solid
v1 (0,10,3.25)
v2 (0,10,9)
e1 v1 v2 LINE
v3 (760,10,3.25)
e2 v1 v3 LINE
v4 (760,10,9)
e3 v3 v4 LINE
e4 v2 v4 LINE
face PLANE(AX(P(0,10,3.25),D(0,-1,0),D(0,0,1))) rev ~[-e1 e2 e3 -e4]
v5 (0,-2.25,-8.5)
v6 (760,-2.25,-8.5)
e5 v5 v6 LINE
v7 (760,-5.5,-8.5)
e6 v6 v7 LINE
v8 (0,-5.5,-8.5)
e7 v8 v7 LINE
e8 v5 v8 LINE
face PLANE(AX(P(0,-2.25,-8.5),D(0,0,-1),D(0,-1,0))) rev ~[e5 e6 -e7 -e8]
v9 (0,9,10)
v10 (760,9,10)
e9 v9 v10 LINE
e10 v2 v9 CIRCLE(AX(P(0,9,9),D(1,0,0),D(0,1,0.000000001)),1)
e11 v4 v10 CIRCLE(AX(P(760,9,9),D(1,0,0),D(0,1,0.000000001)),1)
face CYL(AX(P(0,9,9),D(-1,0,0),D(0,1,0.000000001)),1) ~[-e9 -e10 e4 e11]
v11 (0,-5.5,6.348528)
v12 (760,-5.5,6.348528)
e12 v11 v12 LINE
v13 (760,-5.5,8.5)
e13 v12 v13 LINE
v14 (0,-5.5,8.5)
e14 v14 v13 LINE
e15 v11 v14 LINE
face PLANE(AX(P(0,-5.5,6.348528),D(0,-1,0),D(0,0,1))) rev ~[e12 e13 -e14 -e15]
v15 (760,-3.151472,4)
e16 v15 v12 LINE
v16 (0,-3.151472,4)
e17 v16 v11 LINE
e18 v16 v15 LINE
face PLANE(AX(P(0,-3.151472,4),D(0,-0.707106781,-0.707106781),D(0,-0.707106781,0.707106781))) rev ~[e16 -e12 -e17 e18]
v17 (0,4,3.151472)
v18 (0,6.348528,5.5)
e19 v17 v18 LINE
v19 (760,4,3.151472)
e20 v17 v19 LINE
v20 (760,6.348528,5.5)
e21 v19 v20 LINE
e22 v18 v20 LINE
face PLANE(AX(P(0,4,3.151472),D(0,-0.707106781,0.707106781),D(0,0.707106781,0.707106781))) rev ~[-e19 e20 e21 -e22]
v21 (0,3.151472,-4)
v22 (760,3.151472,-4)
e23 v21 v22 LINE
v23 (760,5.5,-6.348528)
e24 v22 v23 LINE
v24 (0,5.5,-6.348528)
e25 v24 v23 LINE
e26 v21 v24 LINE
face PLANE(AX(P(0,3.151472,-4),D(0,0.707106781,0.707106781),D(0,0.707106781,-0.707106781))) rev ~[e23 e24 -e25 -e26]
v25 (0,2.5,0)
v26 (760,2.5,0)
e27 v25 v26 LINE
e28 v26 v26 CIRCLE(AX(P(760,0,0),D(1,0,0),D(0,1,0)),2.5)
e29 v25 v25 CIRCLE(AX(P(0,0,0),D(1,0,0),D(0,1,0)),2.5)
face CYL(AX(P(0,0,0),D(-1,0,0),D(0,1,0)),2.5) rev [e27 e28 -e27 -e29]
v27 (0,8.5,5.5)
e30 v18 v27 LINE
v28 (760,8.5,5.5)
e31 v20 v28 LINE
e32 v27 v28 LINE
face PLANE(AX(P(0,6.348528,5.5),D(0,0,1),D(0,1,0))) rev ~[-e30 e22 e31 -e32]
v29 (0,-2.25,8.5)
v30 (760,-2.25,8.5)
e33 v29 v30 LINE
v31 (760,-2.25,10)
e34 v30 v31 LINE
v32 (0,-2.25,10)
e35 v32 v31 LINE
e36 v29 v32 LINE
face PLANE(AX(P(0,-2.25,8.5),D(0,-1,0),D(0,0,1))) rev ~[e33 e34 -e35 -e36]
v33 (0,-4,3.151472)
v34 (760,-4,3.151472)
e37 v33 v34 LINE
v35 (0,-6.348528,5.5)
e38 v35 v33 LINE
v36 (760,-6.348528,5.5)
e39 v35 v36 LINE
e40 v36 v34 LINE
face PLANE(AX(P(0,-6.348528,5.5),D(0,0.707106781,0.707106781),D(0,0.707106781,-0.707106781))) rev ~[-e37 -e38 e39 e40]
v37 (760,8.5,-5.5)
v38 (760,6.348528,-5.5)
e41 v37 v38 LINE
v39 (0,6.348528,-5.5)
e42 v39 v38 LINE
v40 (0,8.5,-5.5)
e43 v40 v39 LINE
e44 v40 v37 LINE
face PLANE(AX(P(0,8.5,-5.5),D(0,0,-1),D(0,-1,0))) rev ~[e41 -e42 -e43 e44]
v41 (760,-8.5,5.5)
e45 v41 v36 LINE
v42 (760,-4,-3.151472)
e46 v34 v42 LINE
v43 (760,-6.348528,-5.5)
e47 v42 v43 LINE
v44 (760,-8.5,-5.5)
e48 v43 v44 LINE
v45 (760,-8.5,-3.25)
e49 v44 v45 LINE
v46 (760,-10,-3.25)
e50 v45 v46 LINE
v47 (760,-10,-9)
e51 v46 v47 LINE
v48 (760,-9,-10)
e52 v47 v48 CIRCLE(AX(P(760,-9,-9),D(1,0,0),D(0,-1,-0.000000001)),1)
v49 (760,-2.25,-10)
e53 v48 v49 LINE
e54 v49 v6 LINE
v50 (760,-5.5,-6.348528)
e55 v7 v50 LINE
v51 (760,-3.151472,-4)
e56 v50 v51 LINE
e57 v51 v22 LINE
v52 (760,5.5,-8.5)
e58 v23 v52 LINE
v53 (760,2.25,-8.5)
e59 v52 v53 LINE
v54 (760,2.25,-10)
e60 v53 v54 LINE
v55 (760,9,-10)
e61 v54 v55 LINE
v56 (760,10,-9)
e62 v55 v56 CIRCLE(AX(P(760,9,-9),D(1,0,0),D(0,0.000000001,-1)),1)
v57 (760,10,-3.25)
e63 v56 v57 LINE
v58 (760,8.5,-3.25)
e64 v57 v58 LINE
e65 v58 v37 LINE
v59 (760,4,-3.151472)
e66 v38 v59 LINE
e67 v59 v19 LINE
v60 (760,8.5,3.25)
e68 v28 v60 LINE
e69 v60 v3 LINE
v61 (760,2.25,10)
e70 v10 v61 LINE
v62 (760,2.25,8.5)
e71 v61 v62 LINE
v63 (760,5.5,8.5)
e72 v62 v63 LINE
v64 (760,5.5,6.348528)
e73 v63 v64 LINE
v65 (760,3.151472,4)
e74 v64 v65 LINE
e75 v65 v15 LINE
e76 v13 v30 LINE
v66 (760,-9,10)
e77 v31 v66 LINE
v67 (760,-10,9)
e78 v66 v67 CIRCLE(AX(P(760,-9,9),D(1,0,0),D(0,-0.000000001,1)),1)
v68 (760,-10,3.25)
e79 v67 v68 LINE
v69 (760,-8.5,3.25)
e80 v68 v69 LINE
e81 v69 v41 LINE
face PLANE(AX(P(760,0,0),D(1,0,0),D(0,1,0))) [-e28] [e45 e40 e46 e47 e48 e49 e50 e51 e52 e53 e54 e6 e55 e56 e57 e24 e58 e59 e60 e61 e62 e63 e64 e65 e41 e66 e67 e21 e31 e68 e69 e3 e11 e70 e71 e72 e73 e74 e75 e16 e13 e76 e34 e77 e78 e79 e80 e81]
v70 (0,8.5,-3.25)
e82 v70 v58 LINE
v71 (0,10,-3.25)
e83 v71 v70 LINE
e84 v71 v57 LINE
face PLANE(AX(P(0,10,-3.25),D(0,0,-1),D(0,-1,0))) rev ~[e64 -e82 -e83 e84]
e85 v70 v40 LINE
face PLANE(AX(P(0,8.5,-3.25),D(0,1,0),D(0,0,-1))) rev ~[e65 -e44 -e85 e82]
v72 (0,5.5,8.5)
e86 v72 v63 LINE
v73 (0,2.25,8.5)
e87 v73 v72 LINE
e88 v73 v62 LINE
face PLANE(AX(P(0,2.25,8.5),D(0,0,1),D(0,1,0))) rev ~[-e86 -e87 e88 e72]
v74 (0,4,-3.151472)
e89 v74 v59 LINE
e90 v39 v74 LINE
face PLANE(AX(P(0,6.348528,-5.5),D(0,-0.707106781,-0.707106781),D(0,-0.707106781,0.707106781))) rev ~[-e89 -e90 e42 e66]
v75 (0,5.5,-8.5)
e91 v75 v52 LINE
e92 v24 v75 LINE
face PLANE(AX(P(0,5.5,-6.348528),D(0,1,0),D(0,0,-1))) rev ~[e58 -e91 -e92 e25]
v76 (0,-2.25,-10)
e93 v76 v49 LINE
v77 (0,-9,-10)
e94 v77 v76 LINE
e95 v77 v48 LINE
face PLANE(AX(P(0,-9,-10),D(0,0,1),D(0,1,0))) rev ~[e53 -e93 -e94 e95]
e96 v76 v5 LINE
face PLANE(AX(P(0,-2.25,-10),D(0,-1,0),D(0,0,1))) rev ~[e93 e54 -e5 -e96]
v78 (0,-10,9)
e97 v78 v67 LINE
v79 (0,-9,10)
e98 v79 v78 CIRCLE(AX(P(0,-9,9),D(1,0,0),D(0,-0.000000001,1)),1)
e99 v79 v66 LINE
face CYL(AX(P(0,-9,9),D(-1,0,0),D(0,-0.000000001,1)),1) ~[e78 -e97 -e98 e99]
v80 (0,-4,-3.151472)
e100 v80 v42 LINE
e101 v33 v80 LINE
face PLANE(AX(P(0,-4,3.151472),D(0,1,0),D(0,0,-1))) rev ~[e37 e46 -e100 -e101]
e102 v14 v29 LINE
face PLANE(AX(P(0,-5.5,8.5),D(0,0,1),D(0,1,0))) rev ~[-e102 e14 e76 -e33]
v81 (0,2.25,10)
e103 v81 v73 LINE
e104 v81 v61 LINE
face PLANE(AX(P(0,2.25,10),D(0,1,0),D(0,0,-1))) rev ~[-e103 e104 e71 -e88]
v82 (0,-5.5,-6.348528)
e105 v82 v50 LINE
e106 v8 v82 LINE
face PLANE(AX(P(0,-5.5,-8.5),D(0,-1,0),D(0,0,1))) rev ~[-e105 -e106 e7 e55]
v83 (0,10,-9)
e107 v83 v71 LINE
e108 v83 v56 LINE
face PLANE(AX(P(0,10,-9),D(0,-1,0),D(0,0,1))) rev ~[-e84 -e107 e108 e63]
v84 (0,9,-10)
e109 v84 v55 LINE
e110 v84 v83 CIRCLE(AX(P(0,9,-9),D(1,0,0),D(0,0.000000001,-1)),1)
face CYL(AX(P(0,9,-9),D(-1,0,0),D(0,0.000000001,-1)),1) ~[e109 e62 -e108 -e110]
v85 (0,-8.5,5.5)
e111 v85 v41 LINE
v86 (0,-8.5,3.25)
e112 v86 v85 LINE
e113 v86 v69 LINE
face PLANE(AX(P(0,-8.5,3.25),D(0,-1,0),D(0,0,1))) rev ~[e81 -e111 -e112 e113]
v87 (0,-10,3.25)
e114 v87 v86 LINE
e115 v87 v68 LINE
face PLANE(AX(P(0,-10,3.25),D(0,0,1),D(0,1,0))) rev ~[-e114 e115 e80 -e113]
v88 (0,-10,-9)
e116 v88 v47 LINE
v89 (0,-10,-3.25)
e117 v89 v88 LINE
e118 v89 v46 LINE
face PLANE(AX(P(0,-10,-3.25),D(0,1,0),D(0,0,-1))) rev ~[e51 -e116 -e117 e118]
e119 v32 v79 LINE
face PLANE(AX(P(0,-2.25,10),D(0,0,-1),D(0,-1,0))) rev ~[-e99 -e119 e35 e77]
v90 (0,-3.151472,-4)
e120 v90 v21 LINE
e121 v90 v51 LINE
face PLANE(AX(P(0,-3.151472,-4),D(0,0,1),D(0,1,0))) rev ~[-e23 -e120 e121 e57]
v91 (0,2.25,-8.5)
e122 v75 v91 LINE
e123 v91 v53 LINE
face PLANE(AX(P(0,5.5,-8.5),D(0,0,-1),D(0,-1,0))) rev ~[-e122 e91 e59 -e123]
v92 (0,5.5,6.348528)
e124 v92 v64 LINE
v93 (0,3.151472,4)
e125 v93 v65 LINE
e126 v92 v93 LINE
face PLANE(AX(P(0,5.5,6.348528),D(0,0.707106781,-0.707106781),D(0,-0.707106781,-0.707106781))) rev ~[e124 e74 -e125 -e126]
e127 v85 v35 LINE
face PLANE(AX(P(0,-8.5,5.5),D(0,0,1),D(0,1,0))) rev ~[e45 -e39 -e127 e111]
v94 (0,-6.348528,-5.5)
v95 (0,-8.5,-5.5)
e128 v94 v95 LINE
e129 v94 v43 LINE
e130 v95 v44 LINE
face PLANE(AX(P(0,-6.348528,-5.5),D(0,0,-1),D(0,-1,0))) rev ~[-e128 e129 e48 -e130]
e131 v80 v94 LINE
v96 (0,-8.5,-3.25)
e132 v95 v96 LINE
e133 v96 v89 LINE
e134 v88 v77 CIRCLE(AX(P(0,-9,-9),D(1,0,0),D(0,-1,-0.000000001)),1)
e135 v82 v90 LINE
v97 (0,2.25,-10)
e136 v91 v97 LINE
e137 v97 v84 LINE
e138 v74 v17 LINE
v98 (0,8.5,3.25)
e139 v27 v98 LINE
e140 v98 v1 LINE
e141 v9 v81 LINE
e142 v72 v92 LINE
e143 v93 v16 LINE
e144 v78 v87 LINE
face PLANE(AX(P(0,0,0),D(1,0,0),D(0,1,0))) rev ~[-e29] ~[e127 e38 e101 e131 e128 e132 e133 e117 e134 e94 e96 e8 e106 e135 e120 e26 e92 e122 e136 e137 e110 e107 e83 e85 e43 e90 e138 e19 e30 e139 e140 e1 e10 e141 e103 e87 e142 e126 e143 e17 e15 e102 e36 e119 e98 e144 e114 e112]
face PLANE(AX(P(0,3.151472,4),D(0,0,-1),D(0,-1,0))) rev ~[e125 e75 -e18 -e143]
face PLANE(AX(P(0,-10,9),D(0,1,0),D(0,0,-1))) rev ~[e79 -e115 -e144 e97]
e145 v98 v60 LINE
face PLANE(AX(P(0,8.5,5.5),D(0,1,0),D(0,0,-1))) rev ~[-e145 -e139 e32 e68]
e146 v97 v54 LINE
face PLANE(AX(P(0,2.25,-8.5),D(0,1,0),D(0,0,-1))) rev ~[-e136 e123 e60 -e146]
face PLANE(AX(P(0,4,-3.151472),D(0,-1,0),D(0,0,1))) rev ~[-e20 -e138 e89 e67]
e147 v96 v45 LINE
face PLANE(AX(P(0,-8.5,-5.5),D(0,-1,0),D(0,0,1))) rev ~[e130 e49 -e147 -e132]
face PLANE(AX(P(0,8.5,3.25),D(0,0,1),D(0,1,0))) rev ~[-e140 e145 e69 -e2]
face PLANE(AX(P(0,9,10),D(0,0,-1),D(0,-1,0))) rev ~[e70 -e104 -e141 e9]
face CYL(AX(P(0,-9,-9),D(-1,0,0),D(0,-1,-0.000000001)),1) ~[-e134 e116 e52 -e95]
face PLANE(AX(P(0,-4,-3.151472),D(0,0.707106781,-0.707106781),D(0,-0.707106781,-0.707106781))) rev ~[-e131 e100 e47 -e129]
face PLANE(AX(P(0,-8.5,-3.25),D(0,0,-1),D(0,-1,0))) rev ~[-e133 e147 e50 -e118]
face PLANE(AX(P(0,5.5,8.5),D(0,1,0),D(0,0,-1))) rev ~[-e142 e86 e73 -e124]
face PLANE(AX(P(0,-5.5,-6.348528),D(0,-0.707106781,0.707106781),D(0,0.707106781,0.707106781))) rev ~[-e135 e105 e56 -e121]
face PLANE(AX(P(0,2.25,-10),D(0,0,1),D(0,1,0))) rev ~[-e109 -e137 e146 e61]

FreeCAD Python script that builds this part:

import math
import FreeCAD as App
import Part
import Sketcher

V = App.Vector
Q = App.Units.Quantity

doc = App.newDocument("Part")
body = doc.addObject("PartDesign::Body", "Body")

sketch1 = body.newObject("Sketcher::SketchObject", "Sketch")
sketch1.AttachmentSupport = (doc.getObject("YZ_Plane"), [""])
sketch1.MapMode = "FlatFace"
sketch1.addGeometry(Part.LineSegment(V(-10, 9, 0), V(-10, 3.2, 0)), False)
sketch1.addGeometry(Part.LineSegment(V(-10, 3.2, 0), V(-8.5, 3.2, 0)), False)
sketch1.addGeometry(Part.LineSegment(V(-8.5, 3.2, 0), V(-8.5, 5.5, 0)), False)
sketch1.addGeometry(Part.LineSegment(V(-8.5, 5.5, 0), V(-6.3, 5.5, 0)), False)
sketch1.addGeometry(Part.LineSegment(V(-6.3, 5.5, 0), V(-4, 3.2, 0)), False)
sketch1.addGeometry(Part.LineSegment(V(-4, 3.2, 0), V(-4, -3.2, 0)), False)
sketch1.addGeometry(Part.LineSegment(V(-4, -3.2, 0), V(-6.3, -5.5, 0)), False)
sketch1.addGeometry(Part.LineSegment(V(-6.3, -5.5, 0), V(-8.5, -5.5, 0)), False)
sketch1.addGeometry(Part.LineSegment(V(-8.5, -5.5, 0), V(-8.5, -3.2, 0)), False)
sketch1.addGeometry(Part.LineSegment(V(-8.5, -3.2, 0), V(-10, -3.2, 0)), False)
sketch1.addGeometry(Part.LineSegment(V(-10, -3.2, 0), V(-10, -9, 0)), False)
sketch1.addGeometry(Part.ArcOfCircle(Part.Circle(V(-9, -9, 0), V(0, 0, 1), 1), math.radians(-180), math.radians(-90)), False)
sketch1.addGeometry(Part.LineSegment(V(-9, -10, 0), V(-2.2, -10, 0)), False)
sketch1.addGeometry(Part.LineSegment(V(-2.2, -10, 0), V(-2.2, -8.5, 0)), False)
sketch1.addGeometry(Part.LineSegment(V(-2.2, -8.5, 0), V(-5.5, -8.5, 0)), False)
sketch1.addGeometry(Part.LineSegment(V(-5.5, -8.5, 0), V(-5.5, -6.3, 0)), False)
sketch1.addGeometry(Part.LineSegment(V(-5.5, -6.3, 0), V(-3.2, -4, 0)), False)
sketch1.addGeometry(Part.LineSegment(V(-3.2, -4, 0), V(3.2, -4, 0)), False)
sketch1.addGeometry(Part.LineSegment(V(3.2, -4, 0), V(5.5, -6.3, 0)), False)
sketch1.addGeometry(Part.LineSegment(V(5.5, -6.3, 0), V(5.5, -8.5, 0)), False)
sketch1.addGeometry(Part.LineSegment(V(5.5, -8.5, 0), V(2.2, -8.5, 0)), False)
sketch1.addGeometry(Part.LineSegment(V(2.2, -8.5, 0), V(2.2, -10, 0)), False)
sketch1.addGeometry(Part.LineSegment(V(2.2, -10, 0), V(9, -10, 0)), False)
sketch1.addGeometry(Part.ArcOfCircle(Part.Circle(V(9, -9, 0), V(0, 0, 1), 1), math.radians(-90), math.radians(0)), False)
sketch1.addGeometry(Part.LineSegment(V(10, -9, 0), V(10, -3.2, 0)), False)
sketch1.addGeometry(Part.LineSegment(V(10, -3.2, 0), V(8.5, -3.2, 0)), False)
sketch1.addGeometry(Part.LineSegment(V(8.5, -3.2, 0), V(8.5, -5.5, 0)), False)
sketch1.addGeometry(Part.LineSegment(V(8.5, -5.5, 0), V(6.3, -5.5, 0)), False)
sketch1.addGeometry(Part.LineSegment(V(6.3, -5.5, 0), V(4, -3.2, 0)), False)
sketch1.addGeometry(Part.LineSegment(V(4, -3.2, 0), V(4, 3.2, 0)), False)
sketch1.addGeometry(Part.LineSegment(V(4, 3.2, 0), V(6.3, 5.5, 0)), False)
sketch1.addGeometry(Part.LineSegment(V(6.3, 5.5, 0), V(8.5, 5.5, 0)), False)
sketch1.addGeometry(Part.LineSegment(V(8.5, 5.5, 0), V(8.5, 3.2, 0)), False)
sketch1.addGeometry(Part.LineSegment(V(8.5, 3.2, 0), V(10, 3.2, 0)), False)
sketch1.addGeometry(Part.LineSegment(V(10, 3.2, 0), V(10, 9, 0)), False)
sketch1.addGeometry(Part.ArcOfCircle(Part.Circle(V(9, 9, 0), V(0, 0, 1), 1), math.radians(0), math.radians(90)), False)
sketch1.addGeometry(Part.LineSegment(V(9, 10, 0), V(2.2, 10, 0)), False)
sketch1.addGeometry(Part.LineSegment(V(2.2, 10, 0), V(2.2, 8.5, 0)), False)
sketch1.addGeometry(Part.LineSegment(V(2.2, 8.5, 0), V(5.5, 8.5, 0)), False)
sketch1.addGeometry(Part.LineSegment(V(5.5, 8.5, 0), V(5.5, 6.3, 0)), False)
sketch1.addGeometry(Part.LineSegment(V(5.5, 6.3, 0), V(3.2, 4, 0)), False)
sketch1.addGeometry(Part.LineSegment(V(3.2, 4, 0), V(-3.2, 4, 0)), False)
sketch1.addGeometry(Part.LineSegment(V(-3.2, 4, 0), V(-5.5, 6.3, 0)), False)
sketch1.addGeometry(Part.LineSegment(V(-5.5, 6.3, 0), V(-5.5, 8.5, 0)), False)
sketch1.addGeometry(Part.LineSegment(V(-5.5, 8.5, 0), V(-2.2, 8.5, 0)), False)
sketch1.addGeometry(Part.LineSegment(V(-2.2, 8.5, 0), V(-2.2, 10, 0)), False)
sketch1.addGeometry(Part.LineSegment(V(-2.2, 10, 0), V(-9, 10, 0)), False)
sketch1.addGeometry(Part.ArcOfCircle(Part.Circle(V(-9, 9, 0), V(0, 0, 1), 1), math.radians(90), math.radians(180)), False)
sketch1.addGeometry(Part.Circle(V(0, 0, 0), V(0, 0, 1), 2.5), False)
sketch1.addConstraint(Sketcher.Constraint("Coincident", 0, 2, 1, 1))
sketch1.addConstraint(Sketcher.Constraint("Coincident", 1, 2, 2, 1))
sketch1.addConstraint(Sketcher.Constraint("Coincident", 2, 2, 3, 1))
sketch1.addConstraint(Sketcher.Constraint("Coincident", 3, 2, 4, 1))
sketch1.addConstraint(Sketcher.Constraint("Coincident", 4, 2, 5, 1))
sketch1.addConstraint(Sketcher.Constraint("Coincident", 5, 2, 6, 1))
sketch1.addConstraint(Sketcher.Constraint("Coincident", 6, 2, 7, 1))
sketch1.addConstraint(Sketcher.Constraint("Coincident", 7, 2, 8, 1))
sketch1.addConstraint(Sketcher.Constraint("Coincident", 8, 2, 9, 1))
sketch1.addConstraint(Sketcher.Constraint("Coincident", 9, 2, 10, 1))
sketch1.addConstraint(Sketcher.Constraint("Tangent", 10, 2, 11, 1))
sketch1.addConstraint(Sketcher.Constraint("Tangent", 11, 2, 12, 1))
sketch1.addConstraint(Sketcher.Constraint("Coincident", 12, 2, 13, 1))
sketch1.addConstraint(Sketcher.Constraint("Coincident", 13, 2, 14, 1))
sketch1.addConstraint(Sketcher.Constraint("Coincident", 14, 2, 15, 1))
sketch1.addConstraint(Sketcher.Constraint("Coincident", 15, 2, 16, 1))
sketch1.addConstraint(Sketcher.Constraint("Coincident", 16, 2, 17, 1))
sketch1.addConstraint(Sketcher.Constraint("Coincident", 17, 2, 18, 1))
sketch1.addConstraint(Sketcher.Constraint("Coincident", 18, 2, 19, 1))
sketch1.addConstraint(Sketcher.Constraint("Coincident", 19, 2, 20, 1))
sketch1.addConstraint(Sketcher.Constraint("Coincident", 20, 2, 21, 1))
sketch1.addConstraint(Sketcher.Constraint("Coincident", 21, 2, 22, 1))
sketch1.addConstraint(Sketcher.Constraint("Tangent", 22, 2, 23, 1))
sketch1.addConstraint(Sketcher.Constraint("Tangent", 23, 2, 24, 1))
sketch1.addConstraint(Sketcher.Constraint("Coincident", 24, 2, 25, 1))
sketch1.addConstraint(Sketcher.Constraint("Coincident", 25, 2, 26, 1))
sketch1.addConstraint(Sketcher.Constraint("Coincident", 26, 2, 27, 1))
sketch1.addConstraint(Sketcher.Constraint("Coincident", 27, 2, 28, 1))
sketch1.addConstraint(Sketcher.Constraint("Coincident", 28, 2, 29, 1))
sketch1.addConstraint(Sketcher.Constraint("Coincident", 29, 2, 30, 1))
sketch1.addConstraint(Sketcher.Constraint("Coincident", 30, 2, 31, 1))
sketch1.addConstraint(Sketcher.Constraint("Coincident", 31, 2, 32, 1))
sketch1.addConstraint(Sketcher.Constraint("Coincident", 32, 2, 33, 1))
sketch1.addConstraint(Sketcher.Constraint("Coincident", 33, 2, 34, 1))
sketch1.addConstraint(Sketcher.Constraint("Tangent", 34, 2, 35, 1))
sketch1.addConstraint(Sketcher.Constraint("Tangent", 35, 2, 36, 1))
sketch1.addConstraint(Sketcher.Constraint("Coincident", 36, 2, 37, 1))
sketch1.addConstraint(Sketcher.Constraint("Coincident", 37, 2, 38, 1))
sketch1.addConstraint(Sketcher.Constraint("Coincident", 38, 2, 39, 1))
sketch1.addConstraint(Sketcher.Constraint("Coincident", 39, 2, 40, 1))
sketch1.addConstraint(Sketcher.Constraint("Coincident", 40, 2, 41, 1))
sketch1.addConstraint(Sketcher.Constraint("Coincident", 41, 2, 42, 1))
sketch1.addConstraint(Sketcher.Constraint("Coincident", 42, 2, 43, 1))
sketch1.addConstraint(Sketcher.Constraint("Coincident", 43, 2, 44, 1))
sketch1.addConstraint(Sketcher.Constraint("Coincident", 44, 2, 45, 1))
sketch1.addConstraint(Sketcher.Constraint("Coincident", 45, 2, 46, 1))
sketch1.addConstraint(Sketcher.Constraint("Tangent", 46, 2, 47, 1))
sketch1.addConstraint(Sketcher.Constraint("Tangent", 47, 2, 0, 1))
sketch1.addConstraint(Sketcher.Constraint("Vertical", 0))
sketch1.addConstraint(Sketcher.Constraint("Horizontal", 1))
sketch1.addConstraint(Sketcher.Constraint("Vertical", 2))
sketch1.addConstraint(Sketcher.Constraint("Horizontal", 3))
sketch1.addConstraint(Sketcher.Constraint("Vertical", 5))
sketch1.addConstraint(Sketcher.Constraint("Horizontal", 7))
sketch1.addConstraint(Sketcher.Constraint("Vertical", 8))
sketch1.addConstraint(Sketcher.Constraint("Horizontal", 9))
sketch1.addConstraint(Sketcher.Constraint("Vertical", 10))
sketch1.addConstraint(Sketcher.Constraint("Horizontal", 12))
sketch1.addConstraint(Sketcher.Constraint("Vertical", 13))
sketch1.addConstraint(Sketcher.Constraint("Horizontal", 14))
sketch1.addConstraint(Sketcher.Constraint("Vertical", 15))
sketch1.addConstraint(Sketcher.Constraint("Horizontal", 17))
sketch1.addConstraint(Sketcher.Constraint("Vertical", 19))
sketch1.addConstraint(Sketcher.Constraint("Horizontal", 20))
sketch1.addConstraint(Sketcher.Constraint("Vertical", 21))
sketch1.addConstraint(Sketcher.Constraint("Horizontal", 22))
sketch1.addConstraint(Sketcher.Constraint("Vertical", 24))
sketch1.addConstraint(Sketcher.Constraint("Horizontal", 25))
sketch1.addConstraint(Sketcher.Constraint("Vertical", 26))
sketch1.addConstraint(Sketcher.Constraint("Horizontal", 27))
sketch1.addConstraint(Sketcher.Constraint("Vertical", 29))
sketch1.addConstraint(Sketcher.Constraint("Horizontal", 31))
sketch1.addConstraint(Sketcher.Constraint("Vertical", 32))
sketch1.addConstraint(Sketcher.Constraint("Horizontal", 33))
sketch1.addConstraint(Sketcher.Constraint("Vertical", 34))
sketch1.addConstraint(Sketcher.Constraint("Horizontal", 36))
sketch1.addConstraint(Sketcher.Constraint("Vertical", 37))
sketch1.addConstraint(Sketcher.Constraint("Horizontal", 38))
sketch1.addConstraint(Sketcher.Constraint("Vertical", 39))
sketch1.addConstraint(Sketcher.Constraint("Horizontal", 41))
sketch1.addConstraint(Sketcher.Constraint("Vertical", 43))
sketch1.addConstraint(Sketcher.Constraint("Horizontal", 44))
sketch1.addConstraint(Sketcher.Constraint("Vertical", 45))
sketch1.addConstraint(Sketcher.Constraint("Horizontal", 46))
sketch1.addConstraint(Sketcher.Constraint("Coincident", 48, 3, -1, 1))
sketch1.addConstraint(Sketcher.Constraint("Equal", 11, 23))
sketch1.addConstraint(Sketcher.Constraint("Equal", 23, 35))
sketch1.addConstraint(Sketcher.Constraint("Equal", 35, 47))
sketch1.addConstraint(Sketcher.Constraint("Symmetric", 11, 3, 35, 3, -1, 1))
sketch1.addConstraint(Sketcher.Constraint("Symmetric", 23, 3, 47, 3, -1, 1))
sketch1.addConstraint(Sketcher.Constraint("Symmetric", 1, 2, 25, 2, -1, 1))
sketch1.addConstraint(Sketcher.Constraint("Symmetric", 3, 2, 27, 2, -1, 1))
sketch1.addConstraint(Sketcher.Constraint("Symmetric", 4, 2, 28, 2, -1, 1))
sketch1.addConstraint(Sketcher.Constraint("Symmetric", 6, 2, 30, 2, -1, 1))
sketch1.addConstraint(Sketcher.Constraint("Symmetric", 8, 2, 32, 2, -1, 1))
sketch1.addConstraint(Sketcher.Constraint("Symmetric", 13, 2, 37, 2, -1, 1))
sketch1.addConstraint(Sketcher.Constraint("Symmetric", 15, 2, 39, 2, -1, 1))
sketch1.addConstraint(Sketcher.Constraint("Symmetric", 16, 2, 40, 2, -1, 1))
sketch1.addConstraint(Sketcher.Constraint("Symmetric", 18, 2, 42, 2, -1, 1))
sketch1.addConstraint(Sketcher.Constraint("Symmetric", 20, 2, 44, 2, -1, 1))
sketch1.addConstraint(Sketcher.Constraint("Symmetric", 11, 3, 23, 3, -2))
sketch1.addConstraint(Sketcher.Constraint("Symmetric", 15, 2, 18, 2, -2))
sketch1.addConstraint(Sketcher.Constraint("Symmetric", 13, 2, 20, 2, -2))
sketch1.addConstraint(Sketcher.Constraint("Symmetric", 8, 2, 25, 2, -2))
sketch1.addConstraint(Sketcher.Constraint("Symmetric", 6, 2, 27, 2, -2))
sketch1.addConstraint(Sketcher.Constraint("Perpendicular", 4, 6))
sketch1.addConstraint(Sketcher.Constraint("Parallel", 6, 16))
sketch1.addConstraint(Sketcher.Constraint("Perpendicular", 16, 18))
sketch1.addConstraint(Sketcher.Constraint("Perpendicular", 28, 30))
sketch1.addConstraint(Sketcher.Constraint("Perpendicular", 40, 42))
sketch1.addConstraint(Sketcher.Constraint("Horizontal", 5, 2, 28, 2))
sketch1.addConstraint(Sketcher.Constraint("Equal", 41, 5))
sketch1.addConstraint(Sketcher.Constraint("Equal", 33, 13))
sketch1.addConstraint(Sketcher.Constraint("Equal", 31, 15))
sketch1.addConstraint(Sketcher.Constraint("Equal", 6, 16))
sketch1.addConstraint(Sketcher.Constraint("Diameter", 48, Q("5 mm")))
sketch1.addConstraint(Sketcher.Constraint("Radius", 11, Q("1 mm")))
sketch1.addConstraint(Sketcher.Constraint("DistanceX", 1, 1, 1, 2, Q("1.5 mm")))
sketch1.addConstraint(Sketcher.Constraint("DistanceX", 11, 3, -1, 1, Q("9 mm")))
sketch1.addConstraint(Sketcher.Constraint("DistanceY", 11, 3, -1, 1, Q("9 mm")))
sketch1.addConstraint(Sketcher.Constraint("DistanceX", 4, 2, -1, 1, Q("4 mm")))
sketch1.addConstraint(Sketcher.Constraint("DistanceY", 13, 2, 6, 2, Q("3 mm")))
sketch1.addConstraint(Sketcher.Constraint("DistanceX", 12, 1, 12, 2, Q("6.75 mm")))
sketch1.addConstraint(Sketcher.Constraint("DistanceY", 0, 2, 0, 1, Q("5.75 mm")))
sketch1.addConstraint(Sketcher.Constraint("DistanceX", 3, 1, 3, 2, Q("2.151472 mm")))
pad1 = body.newObject("PartDesign::Pad", "Pad")
pad1.Profile = sketch1
pad1.Length = 760

doc.recompute()
